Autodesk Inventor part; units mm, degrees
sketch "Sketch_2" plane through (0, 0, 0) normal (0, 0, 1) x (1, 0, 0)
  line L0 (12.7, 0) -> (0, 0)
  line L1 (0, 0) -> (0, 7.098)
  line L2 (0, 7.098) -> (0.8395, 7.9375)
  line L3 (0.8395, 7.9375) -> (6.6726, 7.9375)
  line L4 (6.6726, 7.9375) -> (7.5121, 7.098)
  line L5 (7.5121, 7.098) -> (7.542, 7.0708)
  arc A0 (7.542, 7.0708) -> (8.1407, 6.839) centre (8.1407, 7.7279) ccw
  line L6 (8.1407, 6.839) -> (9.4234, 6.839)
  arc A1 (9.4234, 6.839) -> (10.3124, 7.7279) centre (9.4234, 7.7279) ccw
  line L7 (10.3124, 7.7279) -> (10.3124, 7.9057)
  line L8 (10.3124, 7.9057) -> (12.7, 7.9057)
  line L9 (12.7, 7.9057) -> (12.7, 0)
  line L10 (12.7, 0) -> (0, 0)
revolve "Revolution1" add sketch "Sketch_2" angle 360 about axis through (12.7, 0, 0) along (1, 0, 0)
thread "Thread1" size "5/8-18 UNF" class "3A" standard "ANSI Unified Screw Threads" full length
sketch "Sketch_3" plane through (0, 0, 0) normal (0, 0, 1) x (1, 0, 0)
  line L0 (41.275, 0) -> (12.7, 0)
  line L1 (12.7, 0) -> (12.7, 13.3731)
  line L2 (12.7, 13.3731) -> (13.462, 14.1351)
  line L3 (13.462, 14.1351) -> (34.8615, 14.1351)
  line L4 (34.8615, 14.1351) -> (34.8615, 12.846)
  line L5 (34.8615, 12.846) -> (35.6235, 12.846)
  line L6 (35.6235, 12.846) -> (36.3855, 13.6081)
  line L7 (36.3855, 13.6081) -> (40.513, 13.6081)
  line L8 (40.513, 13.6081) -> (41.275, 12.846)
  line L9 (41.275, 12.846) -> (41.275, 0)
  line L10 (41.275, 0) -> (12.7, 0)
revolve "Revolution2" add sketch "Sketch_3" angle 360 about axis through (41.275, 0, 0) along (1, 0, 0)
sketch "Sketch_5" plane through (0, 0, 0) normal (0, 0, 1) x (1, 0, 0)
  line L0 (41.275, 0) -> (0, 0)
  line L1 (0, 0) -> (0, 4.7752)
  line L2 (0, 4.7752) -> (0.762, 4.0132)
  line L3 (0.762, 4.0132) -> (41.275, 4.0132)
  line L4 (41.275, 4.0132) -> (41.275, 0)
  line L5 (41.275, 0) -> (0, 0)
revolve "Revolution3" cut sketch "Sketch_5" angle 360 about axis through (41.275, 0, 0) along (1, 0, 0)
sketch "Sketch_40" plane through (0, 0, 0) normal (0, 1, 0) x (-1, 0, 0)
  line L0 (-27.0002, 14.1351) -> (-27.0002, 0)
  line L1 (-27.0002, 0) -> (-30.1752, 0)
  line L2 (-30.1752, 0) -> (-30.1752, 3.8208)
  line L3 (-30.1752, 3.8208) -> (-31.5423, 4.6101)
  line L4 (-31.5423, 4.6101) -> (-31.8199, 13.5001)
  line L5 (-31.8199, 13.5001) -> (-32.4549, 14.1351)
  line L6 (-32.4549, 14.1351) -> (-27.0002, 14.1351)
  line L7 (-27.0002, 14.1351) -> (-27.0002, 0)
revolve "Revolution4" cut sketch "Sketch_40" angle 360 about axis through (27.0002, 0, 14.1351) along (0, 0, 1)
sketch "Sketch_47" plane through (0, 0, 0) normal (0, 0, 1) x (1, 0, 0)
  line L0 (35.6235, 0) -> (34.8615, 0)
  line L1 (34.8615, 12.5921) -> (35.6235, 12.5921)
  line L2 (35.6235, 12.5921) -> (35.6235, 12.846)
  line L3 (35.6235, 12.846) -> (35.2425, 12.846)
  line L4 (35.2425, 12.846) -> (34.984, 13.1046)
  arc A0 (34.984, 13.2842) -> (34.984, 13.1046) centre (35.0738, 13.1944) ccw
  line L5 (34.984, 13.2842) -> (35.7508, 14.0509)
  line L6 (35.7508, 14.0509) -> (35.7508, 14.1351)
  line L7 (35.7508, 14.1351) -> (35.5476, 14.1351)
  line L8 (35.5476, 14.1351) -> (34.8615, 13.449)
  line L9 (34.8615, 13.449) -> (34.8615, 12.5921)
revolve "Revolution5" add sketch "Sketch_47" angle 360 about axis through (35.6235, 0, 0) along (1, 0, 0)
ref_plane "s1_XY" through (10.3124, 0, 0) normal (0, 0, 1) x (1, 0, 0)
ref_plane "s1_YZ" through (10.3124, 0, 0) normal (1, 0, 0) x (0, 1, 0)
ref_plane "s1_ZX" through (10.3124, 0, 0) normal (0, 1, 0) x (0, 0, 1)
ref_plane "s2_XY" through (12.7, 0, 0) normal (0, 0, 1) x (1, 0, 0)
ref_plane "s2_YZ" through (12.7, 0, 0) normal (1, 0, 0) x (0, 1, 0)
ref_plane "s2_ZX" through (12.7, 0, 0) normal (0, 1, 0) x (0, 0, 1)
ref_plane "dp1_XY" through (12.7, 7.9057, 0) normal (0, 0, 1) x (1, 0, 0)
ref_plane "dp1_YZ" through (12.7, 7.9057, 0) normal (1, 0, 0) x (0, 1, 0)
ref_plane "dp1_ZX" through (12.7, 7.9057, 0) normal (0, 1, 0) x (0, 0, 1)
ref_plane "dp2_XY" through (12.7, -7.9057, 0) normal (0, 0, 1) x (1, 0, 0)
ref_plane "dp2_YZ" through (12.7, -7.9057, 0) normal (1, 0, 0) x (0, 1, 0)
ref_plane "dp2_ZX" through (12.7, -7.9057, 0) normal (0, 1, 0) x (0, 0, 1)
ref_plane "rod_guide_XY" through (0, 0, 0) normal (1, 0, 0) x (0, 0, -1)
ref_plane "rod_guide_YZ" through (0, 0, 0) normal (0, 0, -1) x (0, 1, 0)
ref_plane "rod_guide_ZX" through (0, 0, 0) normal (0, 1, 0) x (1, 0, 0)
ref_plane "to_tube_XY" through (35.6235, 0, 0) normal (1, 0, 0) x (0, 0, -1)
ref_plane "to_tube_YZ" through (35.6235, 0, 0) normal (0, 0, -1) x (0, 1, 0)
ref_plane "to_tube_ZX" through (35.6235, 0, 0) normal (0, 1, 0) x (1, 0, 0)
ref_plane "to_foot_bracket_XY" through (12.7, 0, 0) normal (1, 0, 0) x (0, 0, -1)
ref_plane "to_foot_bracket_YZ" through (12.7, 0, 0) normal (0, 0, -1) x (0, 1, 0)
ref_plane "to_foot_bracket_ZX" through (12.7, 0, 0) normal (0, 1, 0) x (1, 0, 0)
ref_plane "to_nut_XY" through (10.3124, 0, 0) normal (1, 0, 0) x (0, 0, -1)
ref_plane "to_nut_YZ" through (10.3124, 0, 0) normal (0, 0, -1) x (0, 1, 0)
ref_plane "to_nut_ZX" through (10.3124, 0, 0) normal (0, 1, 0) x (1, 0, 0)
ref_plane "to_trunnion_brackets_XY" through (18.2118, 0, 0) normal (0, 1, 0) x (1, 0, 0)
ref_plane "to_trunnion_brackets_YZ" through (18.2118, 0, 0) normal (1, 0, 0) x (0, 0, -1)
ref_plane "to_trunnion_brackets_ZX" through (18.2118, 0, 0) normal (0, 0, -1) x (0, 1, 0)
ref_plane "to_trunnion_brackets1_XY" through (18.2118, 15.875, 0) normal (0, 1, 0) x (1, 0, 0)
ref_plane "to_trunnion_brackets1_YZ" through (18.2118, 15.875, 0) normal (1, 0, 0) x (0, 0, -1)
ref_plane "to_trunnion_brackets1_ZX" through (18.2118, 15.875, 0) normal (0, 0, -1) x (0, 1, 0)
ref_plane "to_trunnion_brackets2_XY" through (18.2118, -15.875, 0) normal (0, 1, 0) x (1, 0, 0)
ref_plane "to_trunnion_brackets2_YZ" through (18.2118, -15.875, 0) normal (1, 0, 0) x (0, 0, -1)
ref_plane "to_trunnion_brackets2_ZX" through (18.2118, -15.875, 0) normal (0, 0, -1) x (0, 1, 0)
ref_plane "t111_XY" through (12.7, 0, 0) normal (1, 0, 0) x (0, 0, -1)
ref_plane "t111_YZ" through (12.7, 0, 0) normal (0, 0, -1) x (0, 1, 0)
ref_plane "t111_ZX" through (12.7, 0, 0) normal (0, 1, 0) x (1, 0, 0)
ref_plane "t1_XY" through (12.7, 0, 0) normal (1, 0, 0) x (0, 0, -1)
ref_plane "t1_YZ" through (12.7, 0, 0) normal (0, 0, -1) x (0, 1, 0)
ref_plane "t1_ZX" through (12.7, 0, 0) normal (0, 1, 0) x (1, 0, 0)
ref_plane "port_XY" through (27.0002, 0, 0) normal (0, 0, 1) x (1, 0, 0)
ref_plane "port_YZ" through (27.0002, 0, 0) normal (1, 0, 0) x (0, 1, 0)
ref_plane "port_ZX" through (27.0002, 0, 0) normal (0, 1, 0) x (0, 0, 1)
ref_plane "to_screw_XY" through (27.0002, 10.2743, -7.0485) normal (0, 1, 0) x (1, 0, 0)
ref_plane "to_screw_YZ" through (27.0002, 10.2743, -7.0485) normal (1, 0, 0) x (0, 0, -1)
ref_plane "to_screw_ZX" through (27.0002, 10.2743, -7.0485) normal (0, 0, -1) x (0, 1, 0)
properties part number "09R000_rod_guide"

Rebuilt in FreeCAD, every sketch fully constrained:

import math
import FreeCAD as App
import Part
import Sketcher
Q = App.Units.Quantity

doc = App.newDocument("Part")
params = doc.addObject("Spreadsheet::Sheet", "Params")
for row, (alias, value) in enumerate([
    ("sketch1_width", "0.5 in"),
    ("sketch1_radius", "0.035 in"),
    ("sketch1_width2", "0.094 in"),
    ("sketch1_height", "0.007 in"),
    ("revolution_angle", "360 deg"),
    ("sketch2_width", "0.03 in"),
    ("sketch2_width2", "1.125 in"),
    ("revolution2_angle", "360 deg"),
    ("sketch3_width", "1.625 in"),
    ("sketch3_width2", "1.595 in"),
    ("sketch3_height", "0.158 in"),
    ("groove_angle", "360 deg"),
    ("sketch4_width", "0.125 in"),
    ("groove2_angle", "360 deg"),
    ("sketch5_radius", "0.005 in"),
    ("sketch5_width", "0.03 in"),
    ("sketch5_height", "0.01 in"),
    ("sketch5_width2", "0.015 in"),
    ("sketch5_width3", "0.008 in"),
    ("revolution3_angle", "360 deg"),
], start=1):
    params.set(f"A{row}", alias)
    params.set(f"B{row}", "=" + value)
    params.setAlias(f"B{row}", alias)

body = doc.addObject("PartDesign::Body", "Body")

sketch1 = body.newObject("Sketcher::SketchObject", "Sketch")
sketch1.AttachmentSupport = (doc.getObject("XY_Plane"), [""])
sketch1.MapMode = "FlatFace"
sketch1.addGeometry(Part.LineSegment(App.Vector(0, 0, 0), App.Vector(12.7, 0, 0)), False)
sketch1.addGeometry(Part.LineSegment(App.Vector(12.7, 0, 0), App.Vector(12.7, 7.906, 0)), False)
sketch1.addGeometry(Part.LineSegment(App.Vector(12.7, 7.906, 0), App.Vector(10.312, 7.906, 0)), False)
sketch1.addGeometry(Part.LineSegment(App.Vector(10.312, 7.906, 0), App.Vector(10.312, 7.728, 0)), False)
sketch1.addGeometry(Part.ArcOfCircle(Part.Circle(App.Vector(9.423, 7.728, 0), App.Vector(0, 0, 1), 0.889), math.radians(-90), math.radians(0)), False)
sketch1.addGeometry(Part.LineSegment(App.Vector(9.423, 6.839, 0), App.Vector(8.141, 6.839, 0)), False)
sketch1.addGeometry(Part.ArcOfCircle(Part.Circle(App.Vector(8.141, 7.728, 0), App.Vector(0, 0, 1), 0.889), math.radians(-132), math.radians(-90)), False)
sketch1.addGeometry(Part.LineSegment(App.Vector(7.542, 7.071, 0), App.Vector(7.512, 7.098, 0)), False)
sketch1.addGeometry(Part.LineSegment(App.Vector(7.512, 7.098, 0), App.Vector(6.673, 7.938, 0)), False)
sketch1.addGeometry(Part.LineSegment(App.Vector(6.673, 7.938, 0), App.Vector(0.84, 7.938, 0)), False)
sketch1.addGeometry(Part.LineSegment(App.Vector(0.84, 7.938, 0), App.Vector(0, 7.098, 0)), False)
sketch1.addGeometry(Part.LineSegment(App.Vector(0, 7.098, 0), App.Vector(0, 0, 0)), False)
sketch1.addConstraint(Sketcher.Constraint("Coincident", 0, 2, 1, 1))
sketch1.addConstraint(Sketcher.Constraint("Coincident", 1, 2, 2, 1))
sketch1.addConstraint(Sketcher.Constraint("Coincident", 2, 2, 3, 1))
sketch1.addConstraint(Sketcher.Constraint("Tangent", 3, 2, 4, 2))
sketch1.addConstraint(Sketcher.Constraint("Tangent", 4, 1, 5, 1))
sketch1.addConstraint(Sketcher.Constraint("Tangent", 5, 2, 6, 2))
sketch1.addConstraint(Sketcher.Constraint("Coincident", 6, 1, 7, 1))
sketch1.addConstraint(Sketcher.Constraint("Coincident", 7, 2, 8, 1))
sketch1.addConstraint(Sketcher.Constraint("Coincident", 8, 2, 9, 1))
sketch1.addConstraint(Sketcher.Constraint("Coincident", 9, 2, 10, 1))
sketch1.addConstraint(Sketcher.Constraint("Coincident", 10, 2, 11, 1))
sketch1.addConstraint(Sketcher.Constraint("Coincident", 11, 2, 0, 1))
sketch1.addConstraint(Sketcher.Constraint("Horizontal", 0))
sketch1.addConstraint(Sketcher.Constraint("Vertical", 1))
sketch1.addConstraint(Sketcher.Constraint("Horizontal", 2))
sketch1.addConstraint(Sketcher.Constraint("Vertical", 3))
sketch1.addConstraint(Sketcher.Constraint("Horizontal", 5))
sketch1.addConstraint(Sketcher.Constraint("Horizontal", 9))
sketch1.addConstraint(Sketcher.Constraint("Vertical", 11))
sketch1.addConstraint(Sketcher.Constraint("Coincident", 11, 2, -1, 1))
sketch1.addConstraint(Sketcher.Constraint("Equal", 4, 6))
sketch1.addConstraint(Sketcher.Constraint("Perpendicular", 8, 10))
sketch1.addConstraint(Sketcher.Constraint("Horizontal", 7, 2, 10, 2))
sketch1.addConstraint(Sketcher.Constraint("Equal", 8, 10))
sketch1.addConstraint(Sketcher.Constraint("DistanceX", 0, 1, 0, 2, Q("0.5 in")))
sketch1.addConstraint(Sketcher.Constraint("Radius", 4, Q("0.035 in")))
sketch1.addConstraint(Sketcher.Constraint("DistanceX", 2, 2, 2, 1, Q("0.094 in")))
sketch1.addConstraint(Sketcher.Constraint("DistanceY", 3, 2, 3, 1, Q("0.007 in")))
sketch1.addConstraint(Sketcher.Constraint("DistanceX", 5, 2, 5, 1, Q("0.0505 in")))
sketch1.addConstraint(Sketcher.Constraint("DistanceY", -1, 1, 8, 2, Q("0.3125 in")))
sketch1.addConstraint(Sketcher.Constraint("Distance", 7, Q("0.0016 in")))
sketch1.addConstraint(Sketcher.Constraint("DistanceX", 9, 2, 9, 1, 5.833))
sketch1.addConstraint(Sketcher.Constraint("DistanceY", 1, 1, 1, 2, 7.9057))
sketch1.addConstraint(Sketcher.Constraint("DistanceY", 11, 2, 11, 1, 7.098))
sketch1.setExpression("Constraints[24]", "Params.sketch1_width")
sketch1.setExpression("Constraints[25]", "Params.sketch1_radius")
sketch1.setExpression("Constraints[26]", "Params.sketch1_width2")
sketch1.setExpression("Constraints[27]", "Params.sketch1_height")
revolution = body.newObject("PartDesign::Revolution", "Revolution")
revolution.Profile = sketch1
revolution.ReferenceAxis = (sketch1, ["H_Axis"])
revolution.setExpression("Angle", "Params.revolution_angle")

sketch2 = body.newObject("Sketcher::SketchObject", "Sketch001")
sketch2.AttachmentSupport = (doc.getObject("XY_Plane"), [""])
sketch2.MapMode = "FlatFace"
sketch2.addGeometry(Part.LineSegment(App.Vector(12.7, 0, 0), App.Vector(41.3, 0, 0)), False)
sketch2.addGeometry(Part.LineSegment(App.Vector(41.3, 0, 0), App.Vector(41.3, 12.8, 0)), False)
sketch2.addGeometry(Part.LineSegment(App.Vector(41.3, 12.8, 0), App.Vector(40.5, 13.6, 0)), False)
sketch2.addGeometry(Part.LineSegment(App.Vector(40.5, 13.6, 0), App.Vector(36.4, 13.6, 0)), False)
sketch2.addGeometry(Part.LineSegment(App.Vector(36.4, 13.6, 0), App.Vector(35.6, 12.8, 0)), False)
sketch2.addGeometry(Part.LineSegment(App.Vector(35.6, 12.8, 0), App.Vector(34.9, 12.8, 0)), False)
sketch2.addGeometry(Part.LineSegment(App.Vector(34.9, 12.8, 0), App.Vector(34.9, 14.1, 0)), False)
sketch2.addGeometry(Part.LineSegment(App.Vector(34.9, 14.1, 0), App.Vector(13.5, 14.1, 0)), False)
sketch2.addGeometry(Part.LineSegment(App.Vector(13.5, 14.1, 0), App.Vector(12.7, 13.4, 0)), False)
sketch2.addGeometry(Part.LineSegment(App.Vector(12.7, 13.4, 0), App.Vector(12.7, 0, 0)), False)
sketch2.addConstraint(Sketcher.Constraint("Coincident", 0, 2, 1, 1))
sketch2.addConstraint(Sketcher.Constraint("Coincident", 1, 2, 2, 1))
sketch2.addConstraint(Sketcher.Constraint("Coincident", 2, 2, 3, 1))
sketch2.addConstraint(Sketcher.Constraint("Coincident", 3, 2, 4, 1))
sketch2.addConstraint(Sketcher.Constraint("Coincident", 4, 2, 5, 1))
sketch2.addConstraint(Sketcher.Constraint("Coincident", 5, 2, 6, 1))
sketch2.addConstraint(Sketcher.Constraint("Coincident", 6, 2, 7, 1))
sketch2.addConstraint(Sketcher.Constraint("Coincident", 7, 2, 8, 1))
sketch2.addConstraint(Sketcher.Constraint("Coincident", 8, 2, 9, 1))
sketch2.addConstraint(Sketcher.Constraint("Coincident", 9, 2, 0, 1))
sketch2.addConstraint(Sketcher.Constraint("Horizontal", 0))
sketch2.addConstraint(Sketcher.Constraint("Vertical", 1))
sketch2.addConstraint(Sketcher.Constraint("Horizontal", 3))
sketch2.addConstraint(Sketcher.Constraint("Horizontal", 5))
sketch2.addConstraint(Sketcher.Constraint("Vertical", 6))
sketch2.addConstraint(Sketcher.Constraint("Horizontal", 7))
sketch2.addConstraint(Sketcher.Constraint("Vertical", 9))
sketch2.addConstraint(Sketcher.Constraint("PointOnObject", 0, 2, -1))
sketch2.addConstraint(Sketcher.Constraint("Perpendicular", 2, 4))
sketch2.addConstraint(Sketcher.Constraint("Parallel", 4, 8))
sketch2.addConstraint(Sketcher.Constraint("Horizontal", 1, 2, 4, 2))
sketch2.addConstraint(Sketcher.Constraint("Equal", 2, 4))
sketch2.addConstraint(Sketcher.Constraint("Equal", 4, 8))
sketch2.addConstraint(Sketcher.Constraint("DistanceX", 5, 2, 5, 1, Q("0.03 in")))
sketch2.addConstraint(Sketcher.Constraint("DistanceX", -1, 1, 8, 2, Q("0.5 in")))
sketch2.addConstraint(Sketcher.Constraint("DistanceX", 0, 1, 0, 2, Q("1.125 in")))
sketch2.addConstraint(Sketcher.Constraint("DistanceX", -1, 1, 7, 2, Q("0.53 in")))
sketch2.addConstraint(Sketcher.Constraint("DistanceX", 3, 2, 3, 1, Q("0.1625 in")))
sketch2.addConstraint(Sketcher.Constraint("DistanceY", 9, 2, 9, 1, Q("0.5265 in")))
sketch2.addConstraint(Sketcher.Constraint("DistanceY", 1, 1, 1, 2, 12.846))
sketch2.setExpression("Constraints[23]", "Params.sketch2_width")
sketch2.setExpression("Constraints[25]", "Params.sketch2_width2")
revolution2 = body.newObject("PartDesign::Revolution", "Revolution001")
revolution2.Profile = sketch2
revolution2.ReferenceAxis = (sketch2, ["H_Axis"])
revolution2.setExpression("Angle", "Params.revolution2_angle")

sketch3 = body.newObject("Sketcher::SketchObject", "Sketch002")
sketch3.AttachmentSupport = (doc.getObject("XY_Plane"), [""])
sketch3.MapMode = "FlatFace"
sketch3.addGeometry(Part.LineSegment(App.Vector(0, 0, 0), App.Vector(41.3, 0, 0)), False)
sketch3.addGeometry(Part.LineSegment(App.Vector(41.3, 0, 0), App.Vector(41.3, 4, 0)), False)
sketch3.addGeometry(Part.LineSegment(App.Vector(41.3, 4, 0), App.Vector(0.8, 4, 0)), False)
sketch3.addGeometry(Part.LineSegment(App.Vector(0.8, 4, 0), App.Vector(0, 4.8, 0)), False)
sketch3.addGeometry(Part.LineSegment(App.Vector(0, 4.8, 0), App.Vector(0, 0, 0)), False)
sketch3.addConstraint(Sketcher.Constraint("Coincident", 0, 2, 1, 1))
sketch3.addConstraint(Sketcher.Constraint("Coincident", 1, 2, 2, 1))
sketch3.addConstraint(Sketcher.Constraint("Coincident", 2, 2, 3, 1))
sketch3.addConstraint(Sketcher.Constraint("Coincident", 3, 2, 4, 1))
sketch3.addConstraint(Sketcher.Constraint("Coincident", 4, 2, 0, 1))
sketch3.addConstraint(Sketcher.Constraint("Horizontal", 0))
sketch3.addConstraint(Sketcher.Constraint("Vertical", 1))
sketch3.addConstraint(Sketcher.Constraint("Horizontal", 2))
sketch3.addConstraint(Sketcher.Constraint("Vertical", 4))
sketch3.addConstraint(Sketcher.Constraint("Coincident", 4, 2, -1, 1))
sketch3.addConstraint(Sketcher.Constraint("Angle", 3, Q("135 deg")))
sketch3.addConstraint(Sketcher.Constraint("DistanceX", 0, 1, 0, 2, Q("1.625 in")))
sketch3.addConstraint(Sketcher.Constraint("DistanceX", 2, 2, 2, 1, Q("1.595 in")))
sketch3.addConstraint(Sketcher.Constraint("DistanceY", 1, 1, 1, 2, Q("0.158 in")))
sketch3.setExpression("Constraints[11]", "Params.sketch3_width")
sketch3.setExpression("Constraints[12]", "Params.sketch3_width2")
sketch3.setExpression("Constraints[13]", "Params.sketch3_height")
groove = body.newObject("PartDesign::Groove", "Groove")
groove.Profile = sketch3
groove.ReferenceAxis = (sketch3, ["H_Axis"])
groove.setExpression("Angle", "Params.groove_angle")

sketch4 = body.newObject("Sketcher::SketchObject", "Sketch003")
sketch4.AttachmentSupport = (doc.getObject("XZ_Plane"), [""])
sketch4.MapMode = "FlatFace"
sketch4.addGeometry(Part.LineSegment(App.Vector(27, 0, 0), App.Vector(27, 14.1, 0)), False)
sketch4.addGeometry(Part.LineSegment(App.Vector(27, 14.1, 0), App.Vector(32.5, 14.1, 0)), False)
sketch4.addGeometry(Part.LineSegment(App.Vector(32.5, 14.1, 0), App.Vector(31.8, 13.5, 0)), False)
sketch4.addGeometry(Part.LineSegment(App.Vector(31.8, 13.5, 0), App.Vector(31.5, 4.6, 0)), False)
sketch4.addGeometry(Part.LineSegment(App.Vector(31.5, 4.6, 0), App.Vector(30.2, 3.8, 0)), False)
sketch4.addGeometry(Part.LineSegment(App.Vector(30.2, 3.8, 0), App.Vector(30.2, 0, 0)), False)
sketch4.addGeometry(Part.LineSegment(App.Vector(30.2, 0, 0), App.Vector(27, 0, 0)), False)
sketch4.addGeometry(Part.LineSegment(App.Vector(27, 0, 0), App.Vector(27, 14.1, 0)), True)
sketch4.addConstraint(Sketcher.Constraint("Coincident", 0, 2, 1, 1))
sketch4.addConstraint(Sketcher.Constraint("Coincident", 1, 2, 2, 1))
sketch4.addConstraint(Sketcher.Constraint("Coincident", 2, 2, 3, 1))
sketch4.addConstraint(Sketcher.Constraint("Coincident", 3, 2, 4, 1))
sketch4.addConstraint(Sketcher.Constraint("Coincident", 4, 2, 5, 1))
sketch4.addConstraint(Sketcher.Constraint("Coincident", 5, 2, 6, 1))
sketch4.addConstraint(Sketcher.Constraint("Coincident", 6, 2, 0, 1))
sketch4.addConstraint(Sketcher.Constraint("Vertical", 0))
sketch4.addConstraint(Sketcher.Constraint("Horizontal", 1))
sketch4.addConstraint(Sketcher.Constraint("Vertical", 5))
sketch4.addConstraint(Sketcher.Constraint("Horizontal", 6))
sketch4.addConstraint(Sketcher.Constraint("Vertical", 7))
sketch4.addConstraint(Sketcher.Constraint("Coincident", 7, 1, 6, 2))
sketch4.addConstraint(Sketcher.Constraint("PointOnObject", 5, 2, -1))
sketch4.addConstraint(Sketcher.Constraint("Horizontal", 1, 2, 7, 2))
sketch4.addConstraint(Sketcher.Constraint("Angle", 2, Q("-135 deg")))
sketch4.addConstraint(Sketcher.Constraint("Angle", 4, Q("-149.9999 deg")))
sketch4.addConstraint(Sketcher.Constraint("DistanceX", 6, 2, 6, 1, Q("0.125 in")))
sketch4.addConstraint(Sketcher.Constraint("DistanceY", 3, 2, 2, 2, Q("0.35 in")))
sketch4.addConstraint(Sketcher.Constraint("DistanceY", 0, 1, 0, 2, Q("0.5565 in")))
sketch4.addConstraint(Sketcher.Constraint("DistanceX", -1, 1, 0, 2, Q("1.063 in")))
sketch4.addConstraint(Sketcher.Constraint("DistanceX", 2, 2, 1, 2, Q("0.025 in")))
sketch4.addConstraint(Sketcher.Constraint("DistanceX", 1, 1, 1, 2, 5.4547))
sketch4.addConstraint(Sketcher.Constraint("DistanceY", 5, 2, 5, 1, 3.8208))
sketch4.setExpression("Constraints[17]", "Params.sketch4_width")
groove2 = body.newObject("PartDesign::Groove", "Groove001")
groove2.Profile = sketch4
groove2.ReferenceAxis = (sketch4, ["Axis0"])
groove2.setExpression("Angle", "Params.groove2_angle")

sketch5 = body.newObject("Sketcher::SketchObject", "Sketch004")
sketch5.AttachmentSupport = (doc.getObject("XY_Plane"), [""])
sketch5.MapMode = "FlatFace"
sketch5.addGeometry(Part.LineSegment(App.Vector(34.86, 13.45, 0), App.Vector(34.86, 12.59, 0)), False)
sketch5.addGeometry(Part.LineSegment(App.Vector(34.86, 12.59, 0), App.Vector(35.62, 12.59, 0)), False)
sketch5.addGeometry(Part.LineSegment(App.Vector(35.62, 12.59, 0), App.Vector(35.62, 12.85, 0)), False)
sketch5.addGeometry(Part.LineSegment(App.Vector(35.62, 12.85, 0), App.Vector(35.24, 12.85, 0)), False)
sketch5.addGeometry(Part.LineSegment(App.Vector(35.24, 12.85, 0), App.Vector(34.98, 13.1, 0)), False)
sketch5.addGeometry(Part.ArcOfCircle(Part.Circle(App.Vector(35.07, 13.19, 0), App.Vector(0, 0, 1), 0.13), math.radians(135), math.radians(225)), False)
sketch5.addGeometry(Part.LineSegment(App.Vector(34.98, 13.28, 0), App.Vector(35.75, 14.05, 0)), False)
sketch5.addGeometry(Part.LineSegment(App.Vector(35.75, 14.05, 0), App.Vector(35.75, 14.14, 0)), False)
sketch5.addGeometry(Part.LineSegment(App.Vector(35.75, 14.14, 0), App.Vector(35.55, 14.14, 0)), False)
sketch5.addGeometry(Part.LineSegment(App.Vector(35.55, 14.14, 0), App.Vector(34.86, 13.45, 0)), False)
sketch5.addConstraint(Sketcher.Constraint("Coincident", 0, 2, 1, 1))
sketch5.addConstraint(Sketcher.Constraint("Coincident", 1, 2, 2, 1))
sketch5.addConstraint(Sketcher.Constraint("Coincident", 2, 2, 3, 1))
sketch5.addConstraint(Sketcher.Constraint("Coincident", 3, 2, 4, 1))
sketch5.addConstraint(Sketcher.Constraint("Tangent", 4, 2, 5, 2))
sketch5.addConstraint(Sketcher.Constraint("Tangent", 5, 1, 6, 1))
sketch5.addConstraint(Sketcher.Constraint("Coincident", 6, 2, 7, 1))
sketch5.addConstraint(Sketcher.Constraint("Coincident", 7, 2, 8, 1))
sketch5.addConstraint(Sketcher.Constraint("Coincident", 8, 2, 9, 1))
sketch5.addConstraint(Sketcher.Constraint("Coincident", 9, 2, 0, 1))
sketch5.addConstraint(Sketcher.Constraint("Vertical", 0))
sketch5.addConstraint(Sketcher.Constraint("Horizontal", 1))
sketch5.addConstraint(Sketcher.Constraint("Vertical", 2))
sketch5.addConstraint(Sketcher.Constraint("Horizontal", 3))
sketch5.addConstraint(Sketcher.Constraint("Vertical", 7))
sketch5.addConstraint(Sketcher.Constraint("Horizontal", 8))
sketch5.addConstraint(Sketcher.Constraint("Perpendicular", 4, 6))
sketch5.addConstraint(Sketcher.Constraint("Parallel", 6, 9))
sketch5.addConstraint(Sketcher.Constraint("Vertical", 4, 2, 5, 1))
sketch5.addConstraint(Sketcher.Constraint("Radius", 5, Q("0.005 in")))
sketch5.addConstraint(Sketcher.Constraint("DistanceX", 1, 1, 1, 2, Q("0.03 in")))
sketch5.addConstraint(Sketcher.Constraint("DistanceY", 2, 1, 2, 2, Q("0.01 in")))
sketch5.addConstraint(Sketcher.Constraint("DistanceX", 3, 2, 3, 1, Q("0.015 in")))
sketch5.addConstraint(Sketcher.Constraint("DistanceX", 8, 2, 8, 1, Q("0.008 in")))
sketch5.addConstraint(Sketcher.Constraint("DistanceX", 3, 2, 6, 2, Q("0.02 in")))
sketch5.addConstraint(Sketcher.Constraint("DistanceY", -1, 1, 5, 1, Q("0.523 in")))
sketch5.addConstraint(Sketcher.Constraint("Distance", 4, Q("0.0144 in")))
sketch5.addConstraint(Sketcher.Constraint("DistanceY", 0, 2, 0, 1, 0.857))
sketch5.addConstraint(Sketcher.Constraint("DistanceX", -1, 1, 0, 2, Q("1.3725 in")))
sketch5.setExpression("Constraints[19]", "Params.sketch5_radius")
sketch5.setExpression("Constraints[20]", "Params.sketch5_width")
sketch5.setExpression("Constraints[21]", "Params.sketch5_height")
sketch5.setExpression("Constraints[22]", "Params.sketch5_width2")
sketch5.setExpression("Constraints[23]", "Params.sketch5_width3")
revolution3 = body.newObject("PartDesign::Revolution", "Revolution002")
revolution3.Profile = sketch5
revolution3.ReferenceAxis = (sketch5, ["H_Axis"])
revolution3.setExpression("Angle", "Params.revolution3_angle")

doc.recompute()
